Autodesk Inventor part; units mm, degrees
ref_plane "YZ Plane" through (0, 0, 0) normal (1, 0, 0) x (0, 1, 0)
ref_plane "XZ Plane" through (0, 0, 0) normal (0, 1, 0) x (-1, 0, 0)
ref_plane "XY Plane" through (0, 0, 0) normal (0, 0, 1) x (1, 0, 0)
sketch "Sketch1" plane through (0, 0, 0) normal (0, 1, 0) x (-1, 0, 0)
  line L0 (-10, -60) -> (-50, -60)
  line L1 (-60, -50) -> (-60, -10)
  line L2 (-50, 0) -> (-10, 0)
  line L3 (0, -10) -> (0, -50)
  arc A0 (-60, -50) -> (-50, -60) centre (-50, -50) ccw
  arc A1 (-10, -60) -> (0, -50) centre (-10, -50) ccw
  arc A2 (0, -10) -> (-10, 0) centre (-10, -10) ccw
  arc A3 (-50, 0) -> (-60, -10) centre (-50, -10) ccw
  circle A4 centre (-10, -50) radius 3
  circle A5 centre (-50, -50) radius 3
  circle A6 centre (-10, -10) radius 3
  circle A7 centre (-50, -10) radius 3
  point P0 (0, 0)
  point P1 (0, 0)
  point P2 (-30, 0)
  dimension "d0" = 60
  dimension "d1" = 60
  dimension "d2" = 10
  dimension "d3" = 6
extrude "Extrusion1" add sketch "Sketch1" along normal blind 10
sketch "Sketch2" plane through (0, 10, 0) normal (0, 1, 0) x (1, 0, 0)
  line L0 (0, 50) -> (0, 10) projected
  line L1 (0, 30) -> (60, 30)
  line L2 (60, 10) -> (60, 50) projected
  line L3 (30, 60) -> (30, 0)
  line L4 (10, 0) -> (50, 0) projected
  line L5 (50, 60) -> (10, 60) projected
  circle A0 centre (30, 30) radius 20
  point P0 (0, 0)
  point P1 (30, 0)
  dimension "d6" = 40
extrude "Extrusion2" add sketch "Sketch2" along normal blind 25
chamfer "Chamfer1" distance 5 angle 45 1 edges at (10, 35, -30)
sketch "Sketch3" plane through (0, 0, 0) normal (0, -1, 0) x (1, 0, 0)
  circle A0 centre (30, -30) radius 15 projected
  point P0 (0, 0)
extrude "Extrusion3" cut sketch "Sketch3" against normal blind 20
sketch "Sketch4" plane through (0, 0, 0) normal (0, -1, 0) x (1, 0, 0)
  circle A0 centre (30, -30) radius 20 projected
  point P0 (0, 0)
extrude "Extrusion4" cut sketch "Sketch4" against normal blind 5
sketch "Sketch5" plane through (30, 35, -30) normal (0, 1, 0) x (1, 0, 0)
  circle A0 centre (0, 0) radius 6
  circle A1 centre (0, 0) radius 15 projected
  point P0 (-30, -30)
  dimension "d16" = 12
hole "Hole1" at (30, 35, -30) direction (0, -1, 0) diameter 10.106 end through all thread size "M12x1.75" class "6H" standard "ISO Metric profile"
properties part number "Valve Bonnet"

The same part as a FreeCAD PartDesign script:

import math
import FreeCAD as App
import Part
import Sketcher
from FreeCAD import Vector
Q = App.Units.Quantity


def edges_at(feature, points):
    """Names of the edges that pass closest to the given points."""
    edges = feature.Shape.Edges
    near = lambda p: min(range(len(edges)), key=lambda i: edges[i].distToShape(Part.Vertex(*p))[0])
    return sorted({f"Edge{near(p) + 1}" for p in points})

doc = App.newDocument("Part")
body = doc.addObject("PartDesign::Body", "Body")

sketch1 = doc.addObject("Sketcher::SketchObject", "Sketch")
body.addObject(sketch1)
sketch1.AttachmentSupport = (doc.XZ_Plane, [""])
sketch1.MapMode = "FlatFace"
sketch1.addGeometry(Part.LineSegment(Vector(50, -60, 0), Vector(10, -60, 0)), False)
sketch1.addGeometry(Part.ArcOfCircle(Part.Circle(Vector(10, -50, 0), Vector(0, 0, 1), 10), math.radians(180), math.radians(270)), False)
sketch1.addGeometry(Part.LineSegment(Vector(0, -50, 0), Vector(0, -10, 0)), False)
sketch1.addGeometry(Part.ArcOfCircle(Part.Circle(Vector(10, -10, 0), Vector(0, 0, 1), 10), math.radians(90), math.radians(180)), False)
sketch1.addGeometry(Part.LineSegment(Vector(10, 0, 0), Vector(50, 0, 0)), False)
sketch1.addGeometry(Part.ArcOfCircle(Part.Circle(Vector(50, -10, 0), Vector(0, 0, 1), 10), math.radians(0), math.radians(90)), False)
sketch1.addGeometry(Part.LineSegment(Vector(60, -10, 0), Vector(60, -50, 0)), False)
sketch1.addGeometry(Part.ArcOfCircle(Part.Circle(Vector(50, -50, 0), Vector(0, 0, 1), 10), math.radians(-90), math.radians(0)), False)
sketch1.addGeometry(Part.Circle(Vector(50, -50, 0), Vector(0, 0, 1), 3), False)
sketch1.addGeometry(Part.Circle(Vector(10, -50, 0), Vector(0, 0, 1), 3), False)
sketch1.addGeometry(Part.Circle(Vector(50, -10, 0), Vector(0, 0, 1), 3), False)
sketch1.addGeometry(Part.Circle(Vector(10, -10, 0), Vector(0, 0, 1), 3), False)
sketch1.addConstraint(Sketcher.Constraint("Tangent", 0, 2, 1, 2))
sketch1.addConstraint(Sketcher.Constraint("Tangent", 1, 1, 2, 1))
sketch1.addConstraint(Sketcher.Constraint("Tangent", 2, 2, 3, 2))
sketch1.addConstraint(Sketcher.Constraint("Tangent", 3, 1, 4, 1))
sketch1.addConstraint(Sketcher.Constraint("Tangent", 4, 2, 5, 2))
sketch1.addConstraint(Sketcher.Constraint("Tangent", 5, 1, 6, 1))
sketch1.addConstraint(Sketcher.Constraint("Tangent", 6, 2, 7, 2))
sketch1.addConstraint(Sketcher.Constraint("Tangent", 7, 1, 0, 1))
sketch1.addConstraint(Sketcher.Constraint("Horizontal", 0))
sketch1.addConstraint(Sketcher.Constraint("Vertical", 2))
sketch1.addConstraint(Sketcher.Constraint("Horizontal", 4))
sketch1.addConstraint(Sketcher.Constraint("Vertical", 6))
sketch1.addConstraint(Sketcher.Constraint("Coincident", 8, 3, 7, 3))
sketch1.addConstraint(Sketcher.Constraint("Coincident", 9, 3, 1, 3))
sketch1.addConstraint(Sketcher.Constraint("Coincident", 10, 3, 5, 3))
sketch1.addConstraint(Sketcher.Constraint("Coincident", 11, 3, 3, 3))
sketch1.addConstraint(Sketcher.Constraint("Equal", 1, 3))
sketch1.addConstraint(Sketcher.Constraint("Equal", 3, 5))
sketch1.addConstraint(Sketcher.Constraint("Equal", 5, 7))
sketch1.addConstraint(Sketcher.Constraint("Equal", 8, 9))
sketch1.addConstraint(Sketcher.Constraint("Equal", 9, 10))
sketch1.addConstraint(Sketcher.Constraint("Equal", 10, 11))
sketch1.addConstraint(Sketcher.Constraint("PointOnObject", 1, 1, -2))
sketch1.addConstraint(Sketcher.Constraint("PointOnObject", 3, 1, -1))
sketch1.addConstraint(Sketcher.Constraint("Equal", 4, 2))
sketch1.addConstraint(Sketcher.Constraint("Diameter", 8, Q("6 mm")))
sketch1.addConstraint(Sketcher.Constraint("Radius", 1, Q("10 mm")))
sketch1.addConstraint(Sketcher.Constraint("DistanceY", 0, 2, -1, 1, Q("60 mm")))
pad1 = doc.addObject("PartDesign::Pad", "Pad")
body.addObject(pad1)
pad1.Profile = sketch1
pad1.Length = 10
pad1.Reversed = True

sketch2 = doc.addObject("Sketcher::SketchObject", "Sketch001")
body.addObject(sketch2)
sketch2.AttachmentSupport = (doc.XZ_Plane, [""])
sketch2.MapMode = "FlatFace"
sketch2.AttachmentOffset = App.Placement(Vector(0, 0, -10), App.Rotation())
sketch2.addGeometry(Part.Circle(Vector(30, -30, 0), Vector(0, 0, 1), 20), False)
sketch2.addConstraint(Sketcher.Constraint("Diameter", 0, Q("40 mm")))
sketch2.addConstraint(Sketcher.Constraint("DistanceX", -1, 1, 0, 3, Q("30 mm")))
sketch2.addConstraint(Sketcher.Constraint("DistanceY", 0, 3, -1, 1, Q("30 mm")))
pad2 = doc.addObject("PartDesign::Pad", "Pad001")
body.addObject(pad2)
pad2.Profile = sketch2
pad2.Length = 25
pad2.Reversed = True
doc.recompute()

chamfer = doc.addObject("PartDesign::Chamfer", "Chamfer")
body.addObject(chamfer)
chamfer.Base = (pad2, edges_at(pad2, [(10, 35, -30)]))
chamfer.Size = 5

sketch3 = doc.addObject("Sketcher::SketchObject", "Sketch002")
body.addObject(sketch3)
sketch3.AttachmentSupport = (doc.XZ_Plane, [""])
sketch3.MapMode = "FlatFace"
sketch3.addGeometry(Part.Circle(Vector(30, -30, 0), Vector(0, 0, 1), 15), False)
sketch3.addConstraint(Sketcher.Constraint("Diameter", 0, Q("30 mm")))
sketch3.addConstraint(Sketcher.Constraint("DistanceX", -1, 1, 0, 3, Q("30 mm")))
sketch3.addConstraint(Sketcher.Constraint("DistanceY", 0, 3, -1, 1, Q("30 mm")))
pocket1 = doc.addObject("PartDesign::Pocket", "Pocket")
body.addObject(pocket1)
pocket1.Profile = sketch3
pocket1.Length = 20

sketch4 = doc.addObject("Sketcher::SketchObject", "Sketch003")
body.addObject(sketch4)
sketch4.AttachmentSupport = (doc.XZ_Plane, [""])
sketch4.MapMode = "FlatFace"
sketch4.addGeometry(Part.Circle(Vector(30, -30, 0), Vector(0, 0, 1), 20), False)
sketch4.addConstraint(Sketcher.Constraint("Diameter", 0, Q("40 mm")))
sketch4.addConstraint(Sketcher.Constraint("DistanceX", -1, 1, 0, 3, Q("30 mm")))
sketch4.addConstraint(Sketcher.Constraint("DistanceY", 0, 3, -1, 1, Q("30 mm")))
pocket2 = doc.addObject("PartDesign::Pocket", "Pocket001")
body.addObject(pocket2)
pocket2.Profile = sketch4
pocket2.Length = 5

sketch5 = doc.addObject("Sketcher::SketchObject", "Sketch004")
body.addObject(sketch5)
sketch5.AttachmentSupport = (doc.XZ_Plane, [""])
sketch5.MapMode = "FlatFace"
sketch5.AttachmentOffset = App.Placement(Vector(0, 0, -35), App.Rotation())
sketch5.addGeometry(Part.Circle(Vector(30, -30, 0), Vector(0, 0, 1), 5), False)
sketch5.addConstraint(Sketcher.Constraint("Diameter", 0, Q("10.106 mm")))
sketch5.addConstraint(Sketcher.Constraint("DistanceX", -1, 1, 0, 3, Q("30 mm")))
sketch5.addConstraint(Sketcher.Constraint("DistanceY", 0, 3, -1, 1, Q("30 mm")))
doc.recompute()
hole = doc.addObject("PartDesign::Hole", "Hole")
body.addObject(hole)
hole.Profile = sketch5
hole.ThreadType = "None"
hole.Diameter = 10.106
hole.DepthType = "ThroughAll"
hole.Reversed = True

doc.recompute()
